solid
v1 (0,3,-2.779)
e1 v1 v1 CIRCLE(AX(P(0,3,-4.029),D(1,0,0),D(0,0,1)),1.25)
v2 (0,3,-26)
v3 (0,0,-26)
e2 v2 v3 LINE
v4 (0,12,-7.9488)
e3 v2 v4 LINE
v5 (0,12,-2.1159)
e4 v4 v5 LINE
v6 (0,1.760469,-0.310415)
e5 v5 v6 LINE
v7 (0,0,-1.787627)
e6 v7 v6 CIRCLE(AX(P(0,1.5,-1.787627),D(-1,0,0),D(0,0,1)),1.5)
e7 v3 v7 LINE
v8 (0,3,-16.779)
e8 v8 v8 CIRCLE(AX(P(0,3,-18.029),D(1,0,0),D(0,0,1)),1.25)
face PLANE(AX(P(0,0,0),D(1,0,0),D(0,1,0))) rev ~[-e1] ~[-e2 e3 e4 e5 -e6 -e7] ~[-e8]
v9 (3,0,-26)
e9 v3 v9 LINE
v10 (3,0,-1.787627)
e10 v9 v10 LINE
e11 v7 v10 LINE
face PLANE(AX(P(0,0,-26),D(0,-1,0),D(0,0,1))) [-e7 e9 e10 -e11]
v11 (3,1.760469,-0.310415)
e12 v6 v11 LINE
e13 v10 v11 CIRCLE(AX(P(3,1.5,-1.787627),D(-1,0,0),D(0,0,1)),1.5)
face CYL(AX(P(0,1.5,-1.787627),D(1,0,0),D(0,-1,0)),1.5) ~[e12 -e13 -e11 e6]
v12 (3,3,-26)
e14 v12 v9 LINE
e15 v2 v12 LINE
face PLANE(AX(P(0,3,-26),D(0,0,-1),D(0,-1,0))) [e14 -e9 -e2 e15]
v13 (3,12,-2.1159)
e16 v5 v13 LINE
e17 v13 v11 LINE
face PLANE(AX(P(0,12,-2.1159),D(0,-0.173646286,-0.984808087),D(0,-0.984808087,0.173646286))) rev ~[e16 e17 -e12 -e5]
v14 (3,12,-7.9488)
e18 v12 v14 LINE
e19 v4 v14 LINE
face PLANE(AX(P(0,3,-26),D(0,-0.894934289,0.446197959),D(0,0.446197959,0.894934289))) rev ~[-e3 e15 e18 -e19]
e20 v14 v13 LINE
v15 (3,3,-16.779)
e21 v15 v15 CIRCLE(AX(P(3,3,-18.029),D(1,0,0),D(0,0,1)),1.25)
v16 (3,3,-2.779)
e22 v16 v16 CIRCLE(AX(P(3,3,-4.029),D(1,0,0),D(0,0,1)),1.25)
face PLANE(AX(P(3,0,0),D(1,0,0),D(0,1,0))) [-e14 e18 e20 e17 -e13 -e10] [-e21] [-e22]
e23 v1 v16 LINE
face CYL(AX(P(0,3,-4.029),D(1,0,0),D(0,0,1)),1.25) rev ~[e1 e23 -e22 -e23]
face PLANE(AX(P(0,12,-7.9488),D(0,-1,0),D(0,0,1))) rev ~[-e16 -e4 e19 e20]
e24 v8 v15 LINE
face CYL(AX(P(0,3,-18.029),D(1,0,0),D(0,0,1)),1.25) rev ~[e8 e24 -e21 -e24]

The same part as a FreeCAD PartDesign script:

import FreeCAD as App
import Part
import Sketcher

V = App.Vector
Q = App.Units.Quantity


def edges_at(feature, points):
    """Names of the edges that pass closest to the given points."""
    edges = feature.Shape.Edges
    near = lambda p: min(range(len(edges)), key=lambda i: edges[i].distToShape(Part.Vertex(*p))[0])
    return sorted({f"Edge{near(p) + 1}" for p in points})

doc = App.newDocument("Part")
body = doc.addObject("PartDesign::Body", "Body")

sketch1 = body.newObject("Sketcher::SketchObject", "Sketch")
sketch1.AttachmentSupport = (doc.getObject("YZ_Plane"), [""])
sketch1.MapMode = "FlatFace"
sketch1.addGeometry(Part.LineSegment(V(0, -26, 0), V(3, -26, 0)), False)
sketch1.addGeometry(Part.LineSegment(V(3, -26, 0), V(12, -7.9, 0)), False)
sketch1.addGeometry(Part.LineSegment(V(12, -7.9, 0), V(12, -2.1, 0)), False)
sketch1.addGeometry(Part.LineSegment(V(12, -2.1, 0), V(0, 0, 0)), False)
sketch1.addGeometry(Part.LineSegment(V(0, 0, 0), V(0, -26, 0)), False)
sketch1.addConstraint(Sketcher.Constraint("Coincident", 0, 2, 1, 1))
sketch1.addConstraint(Sketcher.Constraint("Coincident", 1, 2, 2, 1))
sketch1.addConstraint(Sketcher.Constraint("Coincident", 2, 2, 3, 1))
sketch1.addConstraint(Sketcher.Constraint("Coincident", 3, 2, 4, 1))
sketch1.addConstraint(Sketcher.Constraint("Coincident", 4, 2, 0, 1))
sketch1.addConstraint(Sketcher.Constraint("Horizontal", 0))
sketch1.addConstraint(Sketcher.Constraint("Vertical", 2))
sketch1.addConstraint(Sketcher.Constraint("Vertical", 4))
sketch1.addConstraint(Sketcher.Constraint("Coincident", 3, 2, -1, 1))
sketch1.addConstraint(Sketcher.Constraint("DistanceX", 0, 1, 0, 2, 3.0))
sketch1.addConstraint(Sketcher.Constraint("DistanceY", 4, 2, 4, 1, 26.0))
sketch1.addConstraint(Sketcher.Constraint("DistanceX", -1, 1, 1, 2, 12.0))
sketch1.addConstraint(Sketcher.Constraint("Angle", 3, Q("170 deg")))
sketch1.addConstraint(Sketcher.Constraint("Angle", 1, Q("63.5 deg")))
pad1 = body.newObject("PartDesign::Pad", "Pad")
pad1.Profile = sketch1
pad1.Length = 3
doc.recompute()

fillet = body.newObject("PartDesign::Fillet", "Fillet")
fillet.Base = (pad1, edges_at(pad1, [(1.5, 0, 0)]))
fillet.Radius = 1.5

sketch2 = body.newObject("Sketcher::SketchObject", "Sketch001")
sketch2.AttachmentSupport = (doc.getObject("YZ_Plane"), [""])
sketch2.MapMode = "FlatFace"
sketch2.addGeometry(Part.Circle(V(3, -18, 0), V(0, 0, 1), 1.2), False)
sketch2.addGeometry(Part.Circle(V(3, -4, 0), V(0, 0, 1), 1.2), False)
sketch2.addConstraint(Sketcher.Constraint("Equal", 0, 1))
sketch2.addConstraint(Sketcher.Constraint("Vertical", 0, 3, 1, 3))
sketch2.addConstraint(Sketcher.Constraint("Diameter", 0, 2.5))
sketch2.addConstraint(Sketcher.Constraint("DistanceX", -1, 1, 0, 3, 3.0))
sketch2.addConstraint(Sketcher.Constraint("DistanceY", 0, 3, 1, 3, 14.0))
sketch2.addConstraint(Sketcher.Constraint("DistanceY", 0, 3, -1, 1, 18.029))
doc.recompute()
hole = body.newObject("PartDesign::Hole", "Hole")
hole.Profile = sketch2
hole.ThreadType = "None"
hole.Diameter = 2.5
hole.DepthType = "ThroughAll"
hole.Reversed = True

doc.recompute()
